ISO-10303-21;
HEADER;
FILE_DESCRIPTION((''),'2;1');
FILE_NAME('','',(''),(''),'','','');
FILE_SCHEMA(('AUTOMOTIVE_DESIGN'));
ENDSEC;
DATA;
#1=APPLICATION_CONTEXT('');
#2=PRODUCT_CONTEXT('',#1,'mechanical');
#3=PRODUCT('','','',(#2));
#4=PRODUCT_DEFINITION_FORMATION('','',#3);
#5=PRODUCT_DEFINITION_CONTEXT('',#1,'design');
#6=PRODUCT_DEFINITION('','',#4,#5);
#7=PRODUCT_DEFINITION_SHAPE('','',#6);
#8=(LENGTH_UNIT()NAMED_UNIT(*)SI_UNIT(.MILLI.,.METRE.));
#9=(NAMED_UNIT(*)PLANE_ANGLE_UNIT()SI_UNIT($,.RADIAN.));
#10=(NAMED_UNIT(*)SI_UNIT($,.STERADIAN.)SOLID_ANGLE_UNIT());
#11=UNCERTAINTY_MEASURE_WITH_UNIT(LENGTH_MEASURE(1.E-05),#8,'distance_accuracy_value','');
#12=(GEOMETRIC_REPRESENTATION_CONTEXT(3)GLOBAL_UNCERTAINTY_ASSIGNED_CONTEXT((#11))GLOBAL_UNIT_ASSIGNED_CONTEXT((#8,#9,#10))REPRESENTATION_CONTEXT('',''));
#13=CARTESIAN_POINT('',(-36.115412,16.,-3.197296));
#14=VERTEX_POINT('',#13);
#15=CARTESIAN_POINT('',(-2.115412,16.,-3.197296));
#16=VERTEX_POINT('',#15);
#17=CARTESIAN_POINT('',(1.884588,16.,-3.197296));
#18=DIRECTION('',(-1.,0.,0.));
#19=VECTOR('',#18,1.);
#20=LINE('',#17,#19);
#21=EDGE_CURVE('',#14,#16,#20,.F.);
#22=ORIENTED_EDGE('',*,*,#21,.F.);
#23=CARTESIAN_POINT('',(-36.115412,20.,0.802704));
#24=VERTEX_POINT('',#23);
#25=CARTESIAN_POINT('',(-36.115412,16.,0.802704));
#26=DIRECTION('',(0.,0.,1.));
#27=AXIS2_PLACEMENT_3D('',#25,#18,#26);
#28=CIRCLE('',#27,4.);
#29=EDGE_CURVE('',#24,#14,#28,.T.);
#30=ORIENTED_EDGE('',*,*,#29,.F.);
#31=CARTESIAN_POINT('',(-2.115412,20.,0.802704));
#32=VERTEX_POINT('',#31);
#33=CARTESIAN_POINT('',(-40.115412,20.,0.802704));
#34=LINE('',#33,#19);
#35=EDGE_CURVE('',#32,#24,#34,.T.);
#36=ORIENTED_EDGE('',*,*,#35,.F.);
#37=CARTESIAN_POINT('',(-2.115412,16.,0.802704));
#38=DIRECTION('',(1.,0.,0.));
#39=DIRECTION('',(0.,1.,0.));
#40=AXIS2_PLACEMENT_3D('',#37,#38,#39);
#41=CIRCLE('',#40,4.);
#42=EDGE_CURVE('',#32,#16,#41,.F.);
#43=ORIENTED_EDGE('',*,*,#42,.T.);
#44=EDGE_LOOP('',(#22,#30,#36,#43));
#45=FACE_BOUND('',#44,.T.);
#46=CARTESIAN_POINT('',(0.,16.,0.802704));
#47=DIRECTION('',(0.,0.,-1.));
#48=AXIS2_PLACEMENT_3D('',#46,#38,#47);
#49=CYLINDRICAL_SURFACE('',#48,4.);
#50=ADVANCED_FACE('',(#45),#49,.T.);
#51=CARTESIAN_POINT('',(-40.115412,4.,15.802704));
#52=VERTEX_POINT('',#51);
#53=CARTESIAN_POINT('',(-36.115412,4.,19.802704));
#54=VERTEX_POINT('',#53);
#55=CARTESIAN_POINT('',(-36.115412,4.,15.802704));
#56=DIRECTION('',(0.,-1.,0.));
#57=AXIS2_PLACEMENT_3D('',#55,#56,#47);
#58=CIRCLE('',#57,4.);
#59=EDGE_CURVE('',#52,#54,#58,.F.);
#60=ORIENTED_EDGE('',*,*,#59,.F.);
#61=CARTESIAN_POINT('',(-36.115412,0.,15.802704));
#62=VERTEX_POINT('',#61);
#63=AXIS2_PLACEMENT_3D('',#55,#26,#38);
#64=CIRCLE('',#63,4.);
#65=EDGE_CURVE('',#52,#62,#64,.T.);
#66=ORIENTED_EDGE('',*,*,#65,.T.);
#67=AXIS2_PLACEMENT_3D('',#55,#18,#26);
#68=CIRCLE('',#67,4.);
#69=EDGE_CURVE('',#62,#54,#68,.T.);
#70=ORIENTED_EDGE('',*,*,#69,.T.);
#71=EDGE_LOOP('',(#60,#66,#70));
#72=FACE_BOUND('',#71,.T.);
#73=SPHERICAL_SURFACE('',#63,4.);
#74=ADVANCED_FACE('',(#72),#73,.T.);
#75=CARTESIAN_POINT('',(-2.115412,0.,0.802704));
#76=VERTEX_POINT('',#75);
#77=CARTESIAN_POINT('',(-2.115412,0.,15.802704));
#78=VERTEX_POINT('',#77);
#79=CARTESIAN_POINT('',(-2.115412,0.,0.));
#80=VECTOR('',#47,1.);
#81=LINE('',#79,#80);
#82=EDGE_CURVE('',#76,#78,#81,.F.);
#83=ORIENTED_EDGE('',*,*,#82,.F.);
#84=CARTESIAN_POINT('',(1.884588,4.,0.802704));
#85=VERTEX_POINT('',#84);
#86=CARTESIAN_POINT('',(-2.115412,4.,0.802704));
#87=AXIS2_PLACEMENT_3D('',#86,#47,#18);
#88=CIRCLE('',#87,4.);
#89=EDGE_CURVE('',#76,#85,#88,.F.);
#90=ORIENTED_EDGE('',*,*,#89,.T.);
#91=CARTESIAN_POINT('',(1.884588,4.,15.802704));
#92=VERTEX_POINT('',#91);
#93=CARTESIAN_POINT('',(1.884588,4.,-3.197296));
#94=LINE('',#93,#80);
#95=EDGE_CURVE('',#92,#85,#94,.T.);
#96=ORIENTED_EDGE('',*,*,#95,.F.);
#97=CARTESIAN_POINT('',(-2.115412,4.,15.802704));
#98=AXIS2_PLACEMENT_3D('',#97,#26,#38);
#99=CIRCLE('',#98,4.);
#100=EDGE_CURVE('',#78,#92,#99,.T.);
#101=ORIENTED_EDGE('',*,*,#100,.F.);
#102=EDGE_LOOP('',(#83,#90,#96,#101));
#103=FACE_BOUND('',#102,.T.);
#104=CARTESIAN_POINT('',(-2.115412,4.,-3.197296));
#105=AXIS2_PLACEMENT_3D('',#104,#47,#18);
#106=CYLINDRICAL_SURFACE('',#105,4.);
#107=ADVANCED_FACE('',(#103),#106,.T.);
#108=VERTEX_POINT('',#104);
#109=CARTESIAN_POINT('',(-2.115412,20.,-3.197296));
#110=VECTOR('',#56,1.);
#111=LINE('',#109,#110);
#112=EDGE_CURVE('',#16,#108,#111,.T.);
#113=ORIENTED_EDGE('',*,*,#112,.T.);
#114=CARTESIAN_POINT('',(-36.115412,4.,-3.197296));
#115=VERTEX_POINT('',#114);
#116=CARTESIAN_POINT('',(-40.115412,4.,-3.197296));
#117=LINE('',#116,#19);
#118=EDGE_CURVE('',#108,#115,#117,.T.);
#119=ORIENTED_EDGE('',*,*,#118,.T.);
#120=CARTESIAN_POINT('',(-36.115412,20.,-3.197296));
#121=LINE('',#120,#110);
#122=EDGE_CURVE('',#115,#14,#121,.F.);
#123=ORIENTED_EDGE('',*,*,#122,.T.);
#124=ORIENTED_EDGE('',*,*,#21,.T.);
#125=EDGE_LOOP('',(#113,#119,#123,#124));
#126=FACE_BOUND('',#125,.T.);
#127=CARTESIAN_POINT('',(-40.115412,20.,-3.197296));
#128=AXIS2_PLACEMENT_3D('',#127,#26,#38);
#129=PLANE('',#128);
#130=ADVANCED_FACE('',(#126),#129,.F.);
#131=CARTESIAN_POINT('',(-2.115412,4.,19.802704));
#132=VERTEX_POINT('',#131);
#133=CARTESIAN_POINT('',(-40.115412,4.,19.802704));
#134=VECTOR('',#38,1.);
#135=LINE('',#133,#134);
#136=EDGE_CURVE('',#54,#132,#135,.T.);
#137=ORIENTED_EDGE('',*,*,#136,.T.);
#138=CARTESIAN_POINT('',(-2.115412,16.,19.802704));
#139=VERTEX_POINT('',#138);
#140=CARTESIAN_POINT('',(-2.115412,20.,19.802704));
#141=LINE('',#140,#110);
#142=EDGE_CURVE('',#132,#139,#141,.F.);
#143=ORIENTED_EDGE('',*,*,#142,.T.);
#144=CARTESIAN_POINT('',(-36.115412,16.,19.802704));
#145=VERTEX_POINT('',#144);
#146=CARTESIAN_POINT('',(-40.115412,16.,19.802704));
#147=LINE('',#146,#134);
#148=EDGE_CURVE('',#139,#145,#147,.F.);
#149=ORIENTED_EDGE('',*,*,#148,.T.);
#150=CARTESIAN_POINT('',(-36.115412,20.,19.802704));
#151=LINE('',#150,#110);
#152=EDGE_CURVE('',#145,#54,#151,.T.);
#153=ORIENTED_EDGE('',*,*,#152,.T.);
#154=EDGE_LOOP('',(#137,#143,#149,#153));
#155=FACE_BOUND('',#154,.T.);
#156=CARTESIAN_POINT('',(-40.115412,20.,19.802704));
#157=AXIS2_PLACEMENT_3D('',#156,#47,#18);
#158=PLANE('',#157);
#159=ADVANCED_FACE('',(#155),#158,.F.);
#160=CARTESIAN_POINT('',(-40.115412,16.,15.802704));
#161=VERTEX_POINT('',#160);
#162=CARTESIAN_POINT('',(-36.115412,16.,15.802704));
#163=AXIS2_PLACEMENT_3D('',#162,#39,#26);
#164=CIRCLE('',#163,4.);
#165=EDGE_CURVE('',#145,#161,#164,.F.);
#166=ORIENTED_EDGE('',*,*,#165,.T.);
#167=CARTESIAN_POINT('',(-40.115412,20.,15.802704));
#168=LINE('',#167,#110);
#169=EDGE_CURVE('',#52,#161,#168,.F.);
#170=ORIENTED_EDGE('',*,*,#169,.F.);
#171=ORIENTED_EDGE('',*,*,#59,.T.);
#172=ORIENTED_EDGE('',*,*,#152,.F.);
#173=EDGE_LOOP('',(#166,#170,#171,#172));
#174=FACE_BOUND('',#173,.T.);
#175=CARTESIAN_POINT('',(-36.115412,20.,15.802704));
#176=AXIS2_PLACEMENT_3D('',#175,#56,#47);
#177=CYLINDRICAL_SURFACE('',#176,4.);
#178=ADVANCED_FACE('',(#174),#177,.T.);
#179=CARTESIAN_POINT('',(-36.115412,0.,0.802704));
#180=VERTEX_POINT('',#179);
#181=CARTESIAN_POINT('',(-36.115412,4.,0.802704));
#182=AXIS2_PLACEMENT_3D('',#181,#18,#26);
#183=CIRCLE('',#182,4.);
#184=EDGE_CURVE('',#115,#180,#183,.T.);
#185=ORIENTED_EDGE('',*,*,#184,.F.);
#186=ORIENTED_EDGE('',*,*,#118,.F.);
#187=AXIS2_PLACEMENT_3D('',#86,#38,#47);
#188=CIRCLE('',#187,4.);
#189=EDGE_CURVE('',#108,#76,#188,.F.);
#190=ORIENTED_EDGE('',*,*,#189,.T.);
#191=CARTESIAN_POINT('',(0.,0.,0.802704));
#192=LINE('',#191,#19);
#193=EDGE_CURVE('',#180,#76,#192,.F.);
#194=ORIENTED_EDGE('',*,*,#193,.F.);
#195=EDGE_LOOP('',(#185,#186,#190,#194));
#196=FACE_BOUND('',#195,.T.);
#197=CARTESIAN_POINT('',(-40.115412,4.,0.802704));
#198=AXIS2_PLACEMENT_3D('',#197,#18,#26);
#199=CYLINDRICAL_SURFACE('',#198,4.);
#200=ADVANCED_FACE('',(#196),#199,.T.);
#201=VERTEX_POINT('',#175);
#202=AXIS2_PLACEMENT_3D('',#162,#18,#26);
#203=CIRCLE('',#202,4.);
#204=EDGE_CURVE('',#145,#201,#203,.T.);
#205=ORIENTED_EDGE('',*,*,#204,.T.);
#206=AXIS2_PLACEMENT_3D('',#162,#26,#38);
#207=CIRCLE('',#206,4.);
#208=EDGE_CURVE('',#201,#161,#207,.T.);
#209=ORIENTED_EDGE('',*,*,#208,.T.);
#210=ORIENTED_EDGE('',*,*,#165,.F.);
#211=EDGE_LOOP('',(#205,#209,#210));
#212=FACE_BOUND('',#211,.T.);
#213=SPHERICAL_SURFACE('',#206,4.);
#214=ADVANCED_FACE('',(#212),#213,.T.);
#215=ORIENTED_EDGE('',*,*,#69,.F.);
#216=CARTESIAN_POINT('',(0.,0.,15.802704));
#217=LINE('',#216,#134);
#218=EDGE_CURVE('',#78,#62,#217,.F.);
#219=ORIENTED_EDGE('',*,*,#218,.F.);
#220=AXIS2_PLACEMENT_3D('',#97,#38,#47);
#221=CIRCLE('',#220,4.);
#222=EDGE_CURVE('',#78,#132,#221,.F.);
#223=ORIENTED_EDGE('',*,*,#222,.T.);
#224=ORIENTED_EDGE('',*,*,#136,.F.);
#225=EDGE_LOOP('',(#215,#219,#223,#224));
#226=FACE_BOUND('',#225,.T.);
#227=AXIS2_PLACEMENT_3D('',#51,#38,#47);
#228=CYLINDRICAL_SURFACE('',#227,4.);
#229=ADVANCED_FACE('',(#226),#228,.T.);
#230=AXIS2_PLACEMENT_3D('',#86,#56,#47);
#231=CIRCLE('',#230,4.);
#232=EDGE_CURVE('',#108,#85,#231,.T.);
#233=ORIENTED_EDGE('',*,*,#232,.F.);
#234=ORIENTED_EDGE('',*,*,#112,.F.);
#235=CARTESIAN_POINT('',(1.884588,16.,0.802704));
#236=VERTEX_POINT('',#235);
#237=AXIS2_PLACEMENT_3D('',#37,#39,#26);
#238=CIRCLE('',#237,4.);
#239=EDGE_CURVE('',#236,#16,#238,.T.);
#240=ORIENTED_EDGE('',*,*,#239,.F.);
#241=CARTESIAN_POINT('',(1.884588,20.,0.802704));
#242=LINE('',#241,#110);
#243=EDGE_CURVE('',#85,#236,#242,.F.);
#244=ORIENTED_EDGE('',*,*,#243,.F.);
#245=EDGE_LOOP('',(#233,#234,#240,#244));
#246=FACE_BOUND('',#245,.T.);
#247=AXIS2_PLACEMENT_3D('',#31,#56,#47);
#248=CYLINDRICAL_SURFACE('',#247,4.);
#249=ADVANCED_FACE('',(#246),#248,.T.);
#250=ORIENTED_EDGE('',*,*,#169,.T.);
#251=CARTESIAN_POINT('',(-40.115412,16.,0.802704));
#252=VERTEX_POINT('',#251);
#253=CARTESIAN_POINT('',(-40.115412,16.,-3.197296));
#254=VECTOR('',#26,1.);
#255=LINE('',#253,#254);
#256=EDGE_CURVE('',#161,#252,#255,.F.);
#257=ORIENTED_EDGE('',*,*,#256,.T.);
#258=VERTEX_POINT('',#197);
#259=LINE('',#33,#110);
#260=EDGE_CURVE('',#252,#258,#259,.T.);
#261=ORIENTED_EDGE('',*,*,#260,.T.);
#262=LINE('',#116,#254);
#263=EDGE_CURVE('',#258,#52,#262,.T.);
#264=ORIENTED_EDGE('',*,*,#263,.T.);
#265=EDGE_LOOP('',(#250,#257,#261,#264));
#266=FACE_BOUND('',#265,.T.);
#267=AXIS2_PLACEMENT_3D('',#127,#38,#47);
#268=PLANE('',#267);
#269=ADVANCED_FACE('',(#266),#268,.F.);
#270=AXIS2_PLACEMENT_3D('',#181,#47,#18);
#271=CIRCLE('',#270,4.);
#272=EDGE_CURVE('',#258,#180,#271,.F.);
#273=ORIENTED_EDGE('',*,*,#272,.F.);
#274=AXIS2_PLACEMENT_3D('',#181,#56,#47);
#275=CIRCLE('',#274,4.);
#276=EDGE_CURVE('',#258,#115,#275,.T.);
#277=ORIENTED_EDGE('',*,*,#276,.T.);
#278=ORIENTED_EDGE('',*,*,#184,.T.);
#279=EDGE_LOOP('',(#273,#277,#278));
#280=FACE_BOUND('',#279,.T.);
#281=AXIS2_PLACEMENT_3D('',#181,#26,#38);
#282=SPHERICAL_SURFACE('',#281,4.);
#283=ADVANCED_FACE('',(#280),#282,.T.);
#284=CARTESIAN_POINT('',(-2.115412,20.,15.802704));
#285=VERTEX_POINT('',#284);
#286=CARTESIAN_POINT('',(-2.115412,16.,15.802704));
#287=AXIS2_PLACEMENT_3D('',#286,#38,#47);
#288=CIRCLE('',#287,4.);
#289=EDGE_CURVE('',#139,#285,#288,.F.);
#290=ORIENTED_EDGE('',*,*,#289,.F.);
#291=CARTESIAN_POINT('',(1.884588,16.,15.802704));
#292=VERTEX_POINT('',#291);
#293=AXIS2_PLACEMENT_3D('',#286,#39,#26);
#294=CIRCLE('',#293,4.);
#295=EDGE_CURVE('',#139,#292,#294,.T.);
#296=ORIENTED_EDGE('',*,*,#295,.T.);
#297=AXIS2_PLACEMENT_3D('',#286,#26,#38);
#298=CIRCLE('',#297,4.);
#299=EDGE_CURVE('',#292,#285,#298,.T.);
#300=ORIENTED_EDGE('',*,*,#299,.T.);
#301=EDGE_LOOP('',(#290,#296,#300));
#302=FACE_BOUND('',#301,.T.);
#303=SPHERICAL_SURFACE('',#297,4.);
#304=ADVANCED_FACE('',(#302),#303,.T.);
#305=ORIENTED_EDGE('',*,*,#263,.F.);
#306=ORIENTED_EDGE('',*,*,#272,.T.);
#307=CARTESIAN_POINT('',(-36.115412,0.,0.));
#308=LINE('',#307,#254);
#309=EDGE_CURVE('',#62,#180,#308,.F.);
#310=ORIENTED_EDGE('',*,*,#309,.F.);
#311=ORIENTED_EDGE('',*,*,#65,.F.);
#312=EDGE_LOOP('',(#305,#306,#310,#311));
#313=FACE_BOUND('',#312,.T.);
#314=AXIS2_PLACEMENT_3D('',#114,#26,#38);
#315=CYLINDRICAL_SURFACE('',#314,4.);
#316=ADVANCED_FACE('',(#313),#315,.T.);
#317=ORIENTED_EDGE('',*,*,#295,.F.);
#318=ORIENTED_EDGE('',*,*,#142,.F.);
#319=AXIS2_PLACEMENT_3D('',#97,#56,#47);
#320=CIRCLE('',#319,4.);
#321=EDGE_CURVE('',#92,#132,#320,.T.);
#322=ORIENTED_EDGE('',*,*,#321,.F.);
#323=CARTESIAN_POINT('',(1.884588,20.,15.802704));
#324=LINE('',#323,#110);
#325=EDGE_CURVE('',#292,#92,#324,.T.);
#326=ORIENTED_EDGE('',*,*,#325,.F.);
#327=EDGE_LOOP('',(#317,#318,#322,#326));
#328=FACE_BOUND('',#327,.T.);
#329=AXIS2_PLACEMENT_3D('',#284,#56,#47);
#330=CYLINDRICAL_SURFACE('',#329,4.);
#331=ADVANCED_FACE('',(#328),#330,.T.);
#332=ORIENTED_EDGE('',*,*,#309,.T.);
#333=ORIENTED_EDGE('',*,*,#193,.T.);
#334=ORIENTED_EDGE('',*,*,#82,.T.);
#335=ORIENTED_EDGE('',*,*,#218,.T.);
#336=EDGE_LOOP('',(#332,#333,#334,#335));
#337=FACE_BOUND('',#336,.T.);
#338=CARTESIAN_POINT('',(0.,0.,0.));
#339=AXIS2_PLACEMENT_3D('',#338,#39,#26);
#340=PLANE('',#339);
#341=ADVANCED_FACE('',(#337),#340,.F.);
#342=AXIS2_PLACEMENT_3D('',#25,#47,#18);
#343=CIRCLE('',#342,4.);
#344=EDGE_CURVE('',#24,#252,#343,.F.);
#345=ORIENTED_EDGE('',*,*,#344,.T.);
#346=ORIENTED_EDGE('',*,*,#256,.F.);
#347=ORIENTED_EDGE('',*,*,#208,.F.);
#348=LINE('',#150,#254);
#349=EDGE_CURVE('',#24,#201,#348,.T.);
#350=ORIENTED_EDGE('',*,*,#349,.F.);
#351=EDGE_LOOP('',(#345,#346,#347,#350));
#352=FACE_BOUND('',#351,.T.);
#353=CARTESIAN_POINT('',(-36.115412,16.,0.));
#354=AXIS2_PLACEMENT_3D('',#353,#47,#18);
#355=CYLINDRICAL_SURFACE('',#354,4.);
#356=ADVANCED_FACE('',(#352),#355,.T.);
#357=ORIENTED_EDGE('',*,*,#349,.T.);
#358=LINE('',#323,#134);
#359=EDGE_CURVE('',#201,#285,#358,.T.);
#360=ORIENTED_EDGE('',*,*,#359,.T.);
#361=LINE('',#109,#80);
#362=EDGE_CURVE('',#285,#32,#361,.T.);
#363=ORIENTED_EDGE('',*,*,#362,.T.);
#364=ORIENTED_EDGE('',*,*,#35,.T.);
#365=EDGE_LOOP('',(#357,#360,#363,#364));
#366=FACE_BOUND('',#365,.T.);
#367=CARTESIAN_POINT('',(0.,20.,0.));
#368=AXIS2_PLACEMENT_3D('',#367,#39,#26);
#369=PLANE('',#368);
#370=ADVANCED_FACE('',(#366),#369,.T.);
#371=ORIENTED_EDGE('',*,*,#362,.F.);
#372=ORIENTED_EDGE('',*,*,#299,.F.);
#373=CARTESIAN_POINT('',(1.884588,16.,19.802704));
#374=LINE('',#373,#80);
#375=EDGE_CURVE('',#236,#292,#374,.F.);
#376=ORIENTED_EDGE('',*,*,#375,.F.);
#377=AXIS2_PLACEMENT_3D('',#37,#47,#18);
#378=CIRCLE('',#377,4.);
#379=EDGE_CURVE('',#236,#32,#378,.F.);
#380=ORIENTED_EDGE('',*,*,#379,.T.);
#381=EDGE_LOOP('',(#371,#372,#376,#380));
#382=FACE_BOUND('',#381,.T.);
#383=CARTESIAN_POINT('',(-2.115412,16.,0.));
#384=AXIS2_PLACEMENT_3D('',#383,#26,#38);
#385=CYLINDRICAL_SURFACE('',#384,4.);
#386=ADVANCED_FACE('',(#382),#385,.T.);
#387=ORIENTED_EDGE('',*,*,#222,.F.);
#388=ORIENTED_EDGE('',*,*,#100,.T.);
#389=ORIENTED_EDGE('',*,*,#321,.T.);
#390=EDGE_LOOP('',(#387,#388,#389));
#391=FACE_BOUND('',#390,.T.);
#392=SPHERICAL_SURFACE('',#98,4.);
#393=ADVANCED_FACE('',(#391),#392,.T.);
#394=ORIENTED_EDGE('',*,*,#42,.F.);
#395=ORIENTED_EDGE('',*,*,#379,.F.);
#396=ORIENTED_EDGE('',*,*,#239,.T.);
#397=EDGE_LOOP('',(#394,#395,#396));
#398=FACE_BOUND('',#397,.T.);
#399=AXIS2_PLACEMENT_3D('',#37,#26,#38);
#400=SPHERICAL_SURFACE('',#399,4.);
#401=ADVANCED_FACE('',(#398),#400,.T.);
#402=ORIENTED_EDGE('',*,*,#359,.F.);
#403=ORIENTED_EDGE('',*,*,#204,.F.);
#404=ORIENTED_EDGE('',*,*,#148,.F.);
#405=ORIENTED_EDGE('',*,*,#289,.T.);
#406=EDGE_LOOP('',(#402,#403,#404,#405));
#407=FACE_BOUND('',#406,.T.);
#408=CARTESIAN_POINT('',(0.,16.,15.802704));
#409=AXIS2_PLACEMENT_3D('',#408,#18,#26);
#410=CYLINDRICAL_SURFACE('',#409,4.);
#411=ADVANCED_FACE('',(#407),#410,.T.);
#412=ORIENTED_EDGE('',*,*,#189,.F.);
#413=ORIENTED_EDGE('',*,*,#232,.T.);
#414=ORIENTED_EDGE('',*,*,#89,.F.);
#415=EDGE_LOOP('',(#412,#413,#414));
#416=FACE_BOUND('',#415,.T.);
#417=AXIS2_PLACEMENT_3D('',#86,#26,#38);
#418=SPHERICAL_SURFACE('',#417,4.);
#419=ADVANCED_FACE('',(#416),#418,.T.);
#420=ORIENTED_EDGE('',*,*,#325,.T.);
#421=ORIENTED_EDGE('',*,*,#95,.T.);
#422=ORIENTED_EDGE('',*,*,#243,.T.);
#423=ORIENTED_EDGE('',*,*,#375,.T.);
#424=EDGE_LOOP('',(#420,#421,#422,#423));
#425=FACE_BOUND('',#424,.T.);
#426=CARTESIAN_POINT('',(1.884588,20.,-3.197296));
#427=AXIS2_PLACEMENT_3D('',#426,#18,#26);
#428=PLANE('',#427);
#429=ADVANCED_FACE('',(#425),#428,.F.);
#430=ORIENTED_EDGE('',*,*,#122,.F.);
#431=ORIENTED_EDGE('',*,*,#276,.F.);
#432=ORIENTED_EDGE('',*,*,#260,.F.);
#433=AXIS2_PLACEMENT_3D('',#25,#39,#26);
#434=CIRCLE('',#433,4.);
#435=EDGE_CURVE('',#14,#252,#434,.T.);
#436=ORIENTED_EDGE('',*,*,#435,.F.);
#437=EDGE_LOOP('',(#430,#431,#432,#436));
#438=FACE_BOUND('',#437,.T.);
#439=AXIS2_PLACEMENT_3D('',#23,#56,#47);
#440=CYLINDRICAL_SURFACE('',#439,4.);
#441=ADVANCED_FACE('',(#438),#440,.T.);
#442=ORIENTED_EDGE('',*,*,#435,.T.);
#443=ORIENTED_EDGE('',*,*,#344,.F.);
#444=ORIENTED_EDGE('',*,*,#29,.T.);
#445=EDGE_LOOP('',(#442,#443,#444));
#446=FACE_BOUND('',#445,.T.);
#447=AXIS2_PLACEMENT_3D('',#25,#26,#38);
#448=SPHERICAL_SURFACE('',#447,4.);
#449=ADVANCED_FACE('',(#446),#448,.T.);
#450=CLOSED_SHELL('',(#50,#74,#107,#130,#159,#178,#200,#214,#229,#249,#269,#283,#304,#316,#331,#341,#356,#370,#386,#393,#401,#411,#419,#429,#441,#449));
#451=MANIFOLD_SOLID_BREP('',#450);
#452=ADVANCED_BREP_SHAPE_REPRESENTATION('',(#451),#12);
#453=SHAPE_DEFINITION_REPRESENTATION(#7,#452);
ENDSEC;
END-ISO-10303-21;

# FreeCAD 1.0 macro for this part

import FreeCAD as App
import Part
import Sketcher

V = App.Vector
Q = App.Units.Quantity


def add_polygon(sketch, points):
    """Adds a closed chain of lines whose ends are joined by coincident constraints."""
    first, n = sketch.GeometryCount, len(points)
    for a, b in zip(points, points[1:] + points[:1]):
        sketch.addGeometry(Part.LineSegment(App.Vector(*a, 0), App.Vector(*b, 0)), False)
    for i in range(n):
        sketch.addConstraint(Sketcher.Constraint("Coincident", first + i, 2, first + (i + 1) % n, 1))

doc = App.newDocument("Part")
body = doc.addObject("PartDesign::Body", "Body")

# Sketch on XZ plane
sketch1 = body.newObject("Sketcher::SketchObject", "Sketch")
sketch1.AttachmentSupport = (doc.getObject("XZ_Plane"), [""])
sketch1.MapMode = "FlatFace"
add_polygon(sketch1, [(-40, -3), (-40, 20), (2, 20), (2, -3)])  # lines 0-3
sketch1.addConstraint([
    Sketcher.Constraint("Vertical", 0),
    Sketcher.Constraint("Horizontal", 1),
    Sketcher.Constraint("Vertical", 2),
    Sketcher.Constraint("Horizontal", 3),
    Sketcher.Constraint("DistanceX", 1, 1, 1, 2, Q("42 mm")),
    Sketcher.Constraint("DistanceY", 0, 1, 0, 2, Q("23 mm")),
    Sketcher.Constraint("DistanceX", 0, 2, -1, 1, Q("40.115412 mm")),
    Sketcher.Constraint("DistanceY", -1, 1, 0, 2, Q("19.802704 mm")),
])
pad1 = body.newObject("PartDesign::Pad", "Pad")
pad1.Profile = sketch1
pad1.Length = 20
pad1.Reversed = True
doc.recompute()

fillet = body.newObject("PartDesign::Fillet", "Fillet")
fillet.Base = (pad1, ["Edge1"])
fillet.UseAllEdges = True
fillet.Radius = 4

doc.recompute()
